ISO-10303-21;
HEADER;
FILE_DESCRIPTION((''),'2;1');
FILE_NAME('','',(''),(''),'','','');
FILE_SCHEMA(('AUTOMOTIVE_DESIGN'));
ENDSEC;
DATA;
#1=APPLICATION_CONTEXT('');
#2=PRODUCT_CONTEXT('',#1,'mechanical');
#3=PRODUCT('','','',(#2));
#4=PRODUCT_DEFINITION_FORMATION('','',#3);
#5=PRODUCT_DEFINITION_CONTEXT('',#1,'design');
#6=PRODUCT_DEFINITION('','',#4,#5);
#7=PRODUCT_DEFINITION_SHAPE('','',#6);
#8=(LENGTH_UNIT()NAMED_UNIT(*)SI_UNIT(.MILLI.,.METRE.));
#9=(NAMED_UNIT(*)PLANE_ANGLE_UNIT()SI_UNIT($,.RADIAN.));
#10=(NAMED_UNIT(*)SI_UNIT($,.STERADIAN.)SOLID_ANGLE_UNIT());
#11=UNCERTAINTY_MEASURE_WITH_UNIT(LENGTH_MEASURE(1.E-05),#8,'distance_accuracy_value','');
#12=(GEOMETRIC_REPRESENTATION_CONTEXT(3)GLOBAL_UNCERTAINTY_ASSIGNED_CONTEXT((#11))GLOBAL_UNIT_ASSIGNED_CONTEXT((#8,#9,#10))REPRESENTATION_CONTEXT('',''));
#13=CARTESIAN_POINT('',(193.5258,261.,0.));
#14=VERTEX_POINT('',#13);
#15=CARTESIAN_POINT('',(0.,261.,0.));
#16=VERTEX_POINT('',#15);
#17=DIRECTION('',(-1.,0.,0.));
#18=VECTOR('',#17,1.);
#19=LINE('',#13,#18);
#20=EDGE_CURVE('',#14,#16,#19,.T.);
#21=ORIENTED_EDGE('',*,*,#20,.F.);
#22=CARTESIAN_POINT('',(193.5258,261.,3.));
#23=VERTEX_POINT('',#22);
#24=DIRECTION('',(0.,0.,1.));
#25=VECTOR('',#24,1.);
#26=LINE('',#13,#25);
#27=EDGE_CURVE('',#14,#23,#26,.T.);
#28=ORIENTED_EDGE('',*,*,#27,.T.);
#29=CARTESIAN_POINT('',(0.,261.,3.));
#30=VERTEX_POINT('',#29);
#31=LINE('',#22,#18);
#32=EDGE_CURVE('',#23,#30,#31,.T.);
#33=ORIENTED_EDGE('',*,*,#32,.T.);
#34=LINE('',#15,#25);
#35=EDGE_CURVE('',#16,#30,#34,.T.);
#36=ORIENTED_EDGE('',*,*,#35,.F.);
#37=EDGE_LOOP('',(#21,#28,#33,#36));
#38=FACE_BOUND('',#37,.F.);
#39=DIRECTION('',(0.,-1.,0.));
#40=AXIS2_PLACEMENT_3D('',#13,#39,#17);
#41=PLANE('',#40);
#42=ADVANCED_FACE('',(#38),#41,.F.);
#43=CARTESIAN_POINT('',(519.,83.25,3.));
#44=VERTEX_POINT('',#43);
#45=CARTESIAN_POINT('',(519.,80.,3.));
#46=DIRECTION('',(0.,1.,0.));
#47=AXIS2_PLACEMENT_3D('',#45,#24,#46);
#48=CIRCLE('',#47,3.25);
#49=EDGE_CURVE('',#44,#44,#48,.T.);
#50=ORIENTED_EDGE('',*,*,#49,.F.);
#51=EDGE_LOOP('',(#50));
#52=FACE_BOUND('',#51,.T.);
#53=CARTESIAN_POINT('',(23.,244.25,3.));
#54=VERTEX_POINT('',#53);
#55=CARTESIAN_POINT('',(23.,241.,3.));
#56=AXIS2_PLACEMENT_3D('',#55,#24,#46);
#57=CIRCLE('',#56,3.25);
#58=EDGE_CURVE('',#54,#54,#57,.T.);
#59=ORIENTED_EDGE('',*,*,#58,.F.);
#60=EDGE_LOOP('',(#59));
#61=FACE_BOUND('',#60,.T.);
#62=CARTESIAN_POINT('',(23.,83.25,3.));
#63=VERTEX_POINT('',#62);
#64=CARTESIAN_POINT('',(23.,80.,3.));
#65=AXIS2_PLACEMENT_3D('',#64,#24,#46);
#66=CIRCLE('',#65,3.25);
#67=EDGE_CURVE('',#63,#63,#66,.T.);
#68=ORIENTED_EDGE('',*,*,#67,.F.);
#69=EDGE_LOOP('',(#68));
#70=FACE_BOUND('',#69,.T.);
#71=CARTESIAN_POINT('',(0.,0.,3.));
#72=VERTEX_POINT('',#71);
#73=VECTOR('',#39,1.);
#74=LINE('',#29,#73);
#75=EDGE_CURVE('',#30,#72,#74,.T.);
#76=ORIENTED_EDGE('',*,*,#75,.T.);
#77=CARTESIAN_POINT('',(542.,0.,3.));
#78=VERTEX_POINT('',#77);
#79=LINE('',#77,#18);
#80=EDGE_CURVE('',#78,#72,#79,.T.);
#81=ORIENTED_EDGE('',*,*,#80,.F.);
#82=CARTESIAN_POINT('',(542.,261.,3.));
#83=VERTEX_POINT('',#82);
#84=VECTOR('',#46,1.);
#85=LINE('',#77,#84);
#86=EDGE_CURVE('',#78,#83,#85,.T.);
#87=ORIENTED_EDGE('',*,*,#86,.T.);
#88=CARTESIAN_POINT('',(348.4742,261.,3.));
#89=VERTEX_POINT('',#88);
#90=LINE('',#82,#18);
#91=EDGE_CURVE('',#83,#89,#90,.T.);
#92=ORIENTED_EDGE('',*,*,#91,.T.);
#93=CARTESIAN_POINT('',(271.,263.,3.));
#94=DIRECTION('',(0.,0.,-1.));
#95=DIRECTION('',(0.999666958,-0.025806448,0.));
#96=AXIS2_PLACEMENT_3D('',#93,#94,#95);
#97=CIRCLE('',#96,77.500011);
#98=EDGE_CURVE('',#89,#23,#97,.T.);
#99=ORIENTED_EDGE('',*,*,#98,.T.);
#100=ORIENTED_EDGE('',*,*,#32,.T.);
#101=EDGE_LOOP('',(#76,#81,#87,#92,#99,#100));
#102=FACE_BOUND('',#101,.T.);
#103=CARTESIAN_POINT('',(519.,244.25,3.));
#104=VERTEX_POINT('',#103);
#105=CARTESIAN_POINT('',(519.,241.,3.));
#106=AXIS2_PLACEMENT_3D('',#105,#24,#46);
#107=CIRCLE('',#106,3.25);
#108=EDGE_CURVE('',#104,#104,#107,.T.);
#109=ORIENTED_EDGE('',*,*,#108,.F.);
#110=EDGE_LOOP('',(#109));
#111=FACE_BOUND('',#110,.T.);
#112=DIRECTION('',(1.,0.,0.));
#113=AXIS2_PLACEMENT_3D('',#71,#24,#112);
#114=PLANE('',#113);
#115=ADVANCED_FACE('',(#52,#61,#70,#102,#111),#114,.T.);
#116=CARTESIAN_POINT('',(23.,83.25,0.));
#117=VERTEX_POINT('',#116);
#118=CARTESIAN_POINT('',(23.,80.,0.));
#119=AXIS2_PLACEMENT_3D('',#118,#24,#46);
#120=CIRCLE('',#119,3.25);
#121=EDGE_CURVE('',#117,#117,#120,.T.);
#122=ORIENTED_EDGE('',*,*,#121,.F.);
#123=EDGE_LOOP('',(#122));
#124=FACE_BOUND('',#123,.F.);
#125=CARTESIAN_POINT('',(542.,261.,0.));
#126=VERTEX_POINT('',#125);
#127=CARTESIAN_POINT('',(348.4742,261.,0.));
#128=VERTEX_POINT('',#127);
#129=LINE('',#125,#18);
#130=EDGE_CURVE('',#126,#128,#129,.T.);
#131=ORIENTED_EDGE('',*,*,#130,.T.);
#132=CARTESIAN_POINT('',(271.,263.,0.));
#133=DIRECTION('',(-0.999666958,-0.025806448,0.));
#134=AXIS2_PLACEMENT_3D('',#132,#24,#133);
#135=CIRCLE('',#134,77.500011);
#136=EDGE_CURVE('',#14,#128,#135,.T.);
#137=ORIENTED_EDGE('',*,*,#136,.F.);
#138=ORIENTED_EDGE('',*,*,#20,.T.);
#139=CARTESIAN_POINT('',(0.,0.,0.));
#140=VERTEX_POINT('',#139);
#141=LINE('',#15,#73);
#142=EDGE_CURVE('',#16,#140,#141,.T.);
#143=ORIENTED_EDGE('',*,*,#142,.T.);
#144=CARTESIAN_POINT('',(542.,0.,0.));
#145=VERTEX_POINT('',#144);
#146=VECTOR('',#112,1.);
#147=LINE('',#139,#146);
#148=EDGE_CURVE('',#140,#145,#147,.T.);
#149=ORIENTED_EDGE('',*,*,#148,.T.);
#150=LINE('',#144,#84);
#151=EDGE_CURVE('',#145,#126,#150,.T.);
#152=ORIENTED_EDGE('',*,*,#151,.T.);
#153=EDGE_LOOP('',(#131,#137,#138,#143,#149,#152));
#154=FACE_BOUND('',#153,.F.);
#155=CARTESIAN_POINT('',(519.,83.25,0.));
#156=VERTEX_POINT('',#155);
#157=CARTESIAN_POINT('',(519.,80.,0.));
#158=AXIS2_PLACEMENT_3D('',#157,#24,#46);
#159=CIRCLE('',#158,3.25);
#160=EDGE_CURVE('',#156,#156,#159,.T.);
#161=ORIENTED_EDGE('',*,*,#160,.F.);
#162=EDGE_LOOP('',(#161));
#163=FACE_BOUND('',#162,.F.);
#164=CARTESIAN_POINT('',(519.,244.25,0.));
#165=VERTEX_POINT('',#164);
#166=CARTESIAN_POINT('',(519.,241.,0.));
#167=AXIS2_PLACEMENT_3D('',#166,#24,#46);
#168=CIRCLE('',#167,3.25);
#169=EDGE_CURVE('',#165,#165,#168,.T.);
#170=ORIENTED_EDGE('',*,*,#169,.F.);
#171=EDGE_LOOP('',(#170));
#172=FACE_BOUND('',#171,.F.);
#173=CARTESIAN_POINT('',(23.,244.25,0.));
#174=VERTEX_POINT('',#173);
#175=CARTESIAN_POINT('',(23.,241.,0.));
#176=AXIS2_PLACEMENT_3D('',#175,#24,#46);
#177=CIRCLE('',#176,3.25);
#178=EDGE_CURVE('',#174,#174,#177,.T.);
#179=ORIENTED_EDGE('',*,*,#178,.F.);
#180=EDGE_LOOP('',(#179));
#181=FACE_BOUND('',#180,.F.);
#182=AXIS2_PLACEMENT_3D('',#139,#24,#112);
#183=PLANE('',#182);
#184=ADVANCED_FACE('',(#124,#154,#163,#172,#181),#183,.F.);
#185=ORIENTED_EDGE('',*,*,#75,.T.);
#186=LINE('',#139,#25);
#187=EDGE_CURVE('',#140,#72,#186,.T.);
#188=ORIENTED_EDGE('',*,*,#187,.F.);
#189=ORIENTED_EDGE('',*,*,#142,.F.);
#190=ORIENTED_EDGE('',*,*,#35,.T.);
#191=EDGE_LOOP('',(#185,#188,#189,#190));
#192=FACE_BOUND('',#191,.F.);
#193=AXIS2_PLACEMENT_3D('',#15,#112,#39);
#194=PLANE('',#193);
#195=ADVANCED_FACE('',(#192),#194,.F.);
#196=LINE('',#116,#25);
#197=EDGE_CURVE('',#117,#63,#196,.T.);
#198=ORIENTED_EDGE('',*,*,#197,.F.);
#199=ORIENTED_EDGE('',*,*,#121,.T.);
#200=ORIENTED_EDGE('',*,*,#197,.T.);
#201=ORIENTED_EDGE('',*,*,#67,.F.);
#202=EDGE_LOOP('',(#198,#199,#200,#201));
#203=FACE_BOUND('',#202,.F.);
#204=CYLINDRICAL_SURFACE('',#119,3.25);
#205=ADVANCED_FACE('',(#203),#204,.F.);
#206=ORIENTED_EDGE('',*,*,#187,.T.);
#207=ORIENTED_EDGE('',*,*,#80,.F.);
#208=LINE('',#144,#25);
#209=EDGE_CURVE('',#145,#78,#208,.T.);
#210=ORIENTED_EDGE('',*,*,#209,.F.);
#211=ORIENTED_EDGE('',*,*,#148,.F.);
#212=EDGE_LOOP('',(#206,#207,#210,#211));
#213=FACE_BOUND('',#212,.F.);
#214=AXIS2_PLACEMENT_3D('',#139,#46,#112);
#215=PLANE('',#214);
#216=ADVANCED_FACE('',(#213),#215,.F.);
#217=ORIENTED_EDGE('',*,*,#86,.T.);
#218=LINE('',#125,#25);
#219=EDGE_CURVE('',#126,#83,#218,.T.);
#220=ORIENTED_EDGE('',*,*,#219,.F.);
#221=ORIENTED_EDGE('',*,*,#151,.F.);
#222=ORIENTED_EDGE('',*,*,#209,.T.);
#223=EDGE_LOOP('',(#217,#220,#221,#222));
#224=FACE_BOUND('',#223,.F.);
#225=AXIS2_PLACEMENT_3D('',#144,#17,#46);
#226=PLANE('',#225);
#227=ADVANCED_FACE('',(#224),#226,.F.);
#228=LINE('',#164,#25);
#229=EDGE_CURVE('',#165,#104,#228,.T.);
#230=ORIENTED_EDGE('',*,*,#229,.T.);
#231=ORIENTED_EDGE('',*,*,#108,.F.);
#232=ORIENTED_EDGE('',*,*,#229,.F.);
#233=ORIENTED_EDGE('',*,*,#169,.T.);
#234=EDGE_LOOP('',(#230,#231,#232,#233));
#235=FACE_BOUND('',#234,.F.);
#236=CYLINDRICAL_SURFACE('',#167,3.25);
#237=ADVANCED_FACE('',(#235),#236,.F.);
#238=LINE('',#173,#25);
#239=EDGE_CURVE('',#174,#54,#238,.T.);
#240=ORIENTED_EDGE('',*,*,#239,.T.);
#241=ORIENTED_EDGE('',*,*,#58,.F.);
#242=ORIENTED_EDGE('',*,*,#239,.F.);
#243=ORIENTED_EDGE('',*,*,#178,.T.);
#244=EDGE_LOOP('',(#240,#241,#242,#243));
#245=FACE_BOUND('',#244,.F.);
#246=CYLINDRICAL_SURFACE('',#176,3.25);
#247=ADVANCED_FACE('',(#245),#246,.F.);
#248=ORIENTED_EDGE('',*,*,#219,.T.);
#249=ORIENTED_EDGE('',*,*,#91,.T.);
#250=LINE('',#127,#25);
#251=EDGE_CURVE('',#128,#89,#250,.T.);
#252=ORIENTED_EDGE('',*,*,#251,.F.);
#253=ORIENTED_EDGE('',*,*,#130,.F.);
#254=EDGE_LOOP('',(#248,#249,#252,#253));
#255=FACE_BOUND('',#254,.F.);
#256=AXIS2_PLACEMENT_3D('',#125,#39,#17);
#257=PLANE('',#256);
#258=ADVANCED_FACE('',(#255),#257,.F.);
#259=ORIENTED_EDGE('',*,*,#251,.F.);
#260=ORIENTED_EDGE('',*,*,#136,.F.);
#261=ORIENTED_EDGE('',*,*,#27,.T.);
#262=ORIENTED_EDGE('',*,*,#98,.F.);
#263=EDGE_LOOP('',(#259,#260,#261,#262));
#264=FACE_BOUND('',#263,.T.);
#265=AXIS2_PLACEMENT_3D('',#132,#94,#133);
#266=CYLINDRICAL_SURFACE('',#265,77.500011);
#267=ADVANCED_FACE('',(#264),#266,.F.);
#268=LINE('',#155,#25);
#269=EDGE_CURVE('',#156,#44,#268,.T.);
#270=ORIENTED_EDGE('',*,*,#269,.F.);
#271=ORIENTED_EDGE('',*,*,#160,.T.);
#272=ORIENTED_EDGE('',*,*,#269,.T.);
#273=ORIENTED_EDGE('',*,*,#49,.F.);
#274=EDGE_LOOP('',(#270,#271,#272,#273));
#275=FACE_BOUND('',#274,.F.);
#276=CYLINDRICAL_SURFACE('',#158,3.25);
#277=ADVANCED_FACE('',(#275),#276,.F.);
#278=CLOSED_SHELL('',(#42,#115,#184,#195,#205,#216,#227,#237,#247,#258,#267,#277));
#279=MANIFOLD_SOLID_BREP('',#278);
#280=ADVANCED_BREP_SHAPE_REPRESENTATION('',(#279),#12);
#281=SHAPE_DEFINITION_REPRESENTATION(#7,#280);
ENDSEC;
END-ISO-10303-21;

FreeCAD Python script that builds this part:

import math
import FreeCAD as App
import Part
import Sketcher

doc = App.newDocument("Part")
body = doc.addObject("PartDesign::Body", "Body")

# Sketch on XY plane
sketch1 = body.newObject("Sketcher::SketchObject", "Sketch")
sketch1.AttachmentSupport = (doc.getObject("XY_Plane"), [""])
sketch1.MapMode = "FlatFace"
sketch1.addGeometry([
    Part.LineSegment(App.Vector(0, 261, 0), App.Vector(0, 0, 0)),  # 0
    Part.LineSegment(App.Vector(0, 0, 0), App.Vector(542, 0, 0)),  # 1
    Part.LineSegment(App.Vector(542, 0, 0), App.Vector(542, 261, 0)),  # 2
    Part.LineSegment(App.Vector(542, 261, 0), App.Vector(348, 261, 0)),  # 3
    Part.ArcOfCircle(Part.Circle(App.Vector(271, 263, 0), App.Vector(0, 0, 1), 78), math.radians(-179), math.radians(-1)),  # 4
    Part.LineSegment(App.Vector(194, 261, 0), App.Vector(0, 261, 0)),  # 5
], False)
sketch1.addConstraint([
    Sketcher.Constraint("Coincident", 0, 2, 1, 1),
    Sketcher.Constraint("Coincident", 1, 2, 2, 1),
    Sketcher.Constraint("Coincident", 2, 2, 3, 1),
    Sketcher.Constraint("Coincident", 3, 2, 4, 2),
    Sketcher.Constraint("Coincident", 4, 1, 5, 1),
    Sketcher.Constraint("Coincident", 5, 2, 0, 1),
    Sketcher.Constraint("Vertical", 0),
    Sketcher.Constraint("Horizontal", 1),
    Sketcher.Constraint("Vertical", 2),
    Sketcher.Constraint("Horizontal", 3),
    Sketcher.Constraint("Horizontal", 5),
    Sketcher.Constraint("Coincident", 0, 2, -1, 1),
    Sketcher.Constraint("Horizontal", 3, 2, 4, 1),
    Sketcher.Constraint("Equal", 3, 5),
    Sketcher.Constraint("Radius", 4, 77.5),
    Sketcher.Constraint("DistanceX", 1, 1, 1, 2, 542.0),
    Sketcher.Constraint("DistanceY", 0, 2, 0, 1, 261.0),
    Sketcher.Constraint("DistanceY", -1, 1, 4, 3, 263.0),
])
pad1 = body.newObject("PartDesign::Pad", "Pad")
pad1.Profile = sketch1
pad1.Length = 3

# Sketch on XY plane
sketch2 = body.newObject("Sketcher::SketchObject", "Sketch001")
sketch2.AttachmentSupport = (doc.getObject("XY_Plane"), [""])
sketch2.MapMode = "FlatFace"
sketch2.addGeometry([
    Part.Circle(App.Vector(23, 241, 0), App.Vector(0, 0, 1), 3.2),
    Part.Circle(App.Vector(519, 241, 0), App.Vector(0, 0, 1), 3.2),
    Part.Circle(App.Vector(519, 80, 0), App.Vector(0, 0, 1), 3.2),
    Part.Circle(App.Vector(23, 80, 0), App.Vector(0, 0, 1), 3.2),
], False)
sketch2.addConstraint([
    Sketcher.Constraint("Equal", 0, 1),
    Sketcher.Constraint("Equal", 1, 2),
    Sketcher.Constraint("Equal", 2, 3),
    Sketcher.Constraint("Horizontal", 0, 3, 1, 3),
    Sketcher.Constraint("Horizontal", 2, 3, 3, 3),
    Sketcher.Constraint("Vertical", 1, 3, 2, 3),
    Sketcher.Constraint("Vertical", 0, 3, 3, 3),
    Sketcher.Constraint("Diameter", 0, 6.5),
    Sketcher.Constraint("DistanceX", -1, 1, 0, 3, 23.0),
    Sketcher.Constraint("DistanceY", -1, 1, 0, 3, 241.0),
    Sketcher.Constraint("DistanceX", -1, 1, 1, 3, 519.0),
    Sketcher.Constraint("DistanceY", -1, 1, 2, 3, 80.0),
])
doc.recompute()
hole = body.newObject("PartDesign::Hole", "Hole")
hole.Profile = sketch2
hole.ThreadType = "None"
hole.Diameter = 6.5
hole.DepthType = "ThroughAll"
hole.Reversed = True

doc.recompute()
